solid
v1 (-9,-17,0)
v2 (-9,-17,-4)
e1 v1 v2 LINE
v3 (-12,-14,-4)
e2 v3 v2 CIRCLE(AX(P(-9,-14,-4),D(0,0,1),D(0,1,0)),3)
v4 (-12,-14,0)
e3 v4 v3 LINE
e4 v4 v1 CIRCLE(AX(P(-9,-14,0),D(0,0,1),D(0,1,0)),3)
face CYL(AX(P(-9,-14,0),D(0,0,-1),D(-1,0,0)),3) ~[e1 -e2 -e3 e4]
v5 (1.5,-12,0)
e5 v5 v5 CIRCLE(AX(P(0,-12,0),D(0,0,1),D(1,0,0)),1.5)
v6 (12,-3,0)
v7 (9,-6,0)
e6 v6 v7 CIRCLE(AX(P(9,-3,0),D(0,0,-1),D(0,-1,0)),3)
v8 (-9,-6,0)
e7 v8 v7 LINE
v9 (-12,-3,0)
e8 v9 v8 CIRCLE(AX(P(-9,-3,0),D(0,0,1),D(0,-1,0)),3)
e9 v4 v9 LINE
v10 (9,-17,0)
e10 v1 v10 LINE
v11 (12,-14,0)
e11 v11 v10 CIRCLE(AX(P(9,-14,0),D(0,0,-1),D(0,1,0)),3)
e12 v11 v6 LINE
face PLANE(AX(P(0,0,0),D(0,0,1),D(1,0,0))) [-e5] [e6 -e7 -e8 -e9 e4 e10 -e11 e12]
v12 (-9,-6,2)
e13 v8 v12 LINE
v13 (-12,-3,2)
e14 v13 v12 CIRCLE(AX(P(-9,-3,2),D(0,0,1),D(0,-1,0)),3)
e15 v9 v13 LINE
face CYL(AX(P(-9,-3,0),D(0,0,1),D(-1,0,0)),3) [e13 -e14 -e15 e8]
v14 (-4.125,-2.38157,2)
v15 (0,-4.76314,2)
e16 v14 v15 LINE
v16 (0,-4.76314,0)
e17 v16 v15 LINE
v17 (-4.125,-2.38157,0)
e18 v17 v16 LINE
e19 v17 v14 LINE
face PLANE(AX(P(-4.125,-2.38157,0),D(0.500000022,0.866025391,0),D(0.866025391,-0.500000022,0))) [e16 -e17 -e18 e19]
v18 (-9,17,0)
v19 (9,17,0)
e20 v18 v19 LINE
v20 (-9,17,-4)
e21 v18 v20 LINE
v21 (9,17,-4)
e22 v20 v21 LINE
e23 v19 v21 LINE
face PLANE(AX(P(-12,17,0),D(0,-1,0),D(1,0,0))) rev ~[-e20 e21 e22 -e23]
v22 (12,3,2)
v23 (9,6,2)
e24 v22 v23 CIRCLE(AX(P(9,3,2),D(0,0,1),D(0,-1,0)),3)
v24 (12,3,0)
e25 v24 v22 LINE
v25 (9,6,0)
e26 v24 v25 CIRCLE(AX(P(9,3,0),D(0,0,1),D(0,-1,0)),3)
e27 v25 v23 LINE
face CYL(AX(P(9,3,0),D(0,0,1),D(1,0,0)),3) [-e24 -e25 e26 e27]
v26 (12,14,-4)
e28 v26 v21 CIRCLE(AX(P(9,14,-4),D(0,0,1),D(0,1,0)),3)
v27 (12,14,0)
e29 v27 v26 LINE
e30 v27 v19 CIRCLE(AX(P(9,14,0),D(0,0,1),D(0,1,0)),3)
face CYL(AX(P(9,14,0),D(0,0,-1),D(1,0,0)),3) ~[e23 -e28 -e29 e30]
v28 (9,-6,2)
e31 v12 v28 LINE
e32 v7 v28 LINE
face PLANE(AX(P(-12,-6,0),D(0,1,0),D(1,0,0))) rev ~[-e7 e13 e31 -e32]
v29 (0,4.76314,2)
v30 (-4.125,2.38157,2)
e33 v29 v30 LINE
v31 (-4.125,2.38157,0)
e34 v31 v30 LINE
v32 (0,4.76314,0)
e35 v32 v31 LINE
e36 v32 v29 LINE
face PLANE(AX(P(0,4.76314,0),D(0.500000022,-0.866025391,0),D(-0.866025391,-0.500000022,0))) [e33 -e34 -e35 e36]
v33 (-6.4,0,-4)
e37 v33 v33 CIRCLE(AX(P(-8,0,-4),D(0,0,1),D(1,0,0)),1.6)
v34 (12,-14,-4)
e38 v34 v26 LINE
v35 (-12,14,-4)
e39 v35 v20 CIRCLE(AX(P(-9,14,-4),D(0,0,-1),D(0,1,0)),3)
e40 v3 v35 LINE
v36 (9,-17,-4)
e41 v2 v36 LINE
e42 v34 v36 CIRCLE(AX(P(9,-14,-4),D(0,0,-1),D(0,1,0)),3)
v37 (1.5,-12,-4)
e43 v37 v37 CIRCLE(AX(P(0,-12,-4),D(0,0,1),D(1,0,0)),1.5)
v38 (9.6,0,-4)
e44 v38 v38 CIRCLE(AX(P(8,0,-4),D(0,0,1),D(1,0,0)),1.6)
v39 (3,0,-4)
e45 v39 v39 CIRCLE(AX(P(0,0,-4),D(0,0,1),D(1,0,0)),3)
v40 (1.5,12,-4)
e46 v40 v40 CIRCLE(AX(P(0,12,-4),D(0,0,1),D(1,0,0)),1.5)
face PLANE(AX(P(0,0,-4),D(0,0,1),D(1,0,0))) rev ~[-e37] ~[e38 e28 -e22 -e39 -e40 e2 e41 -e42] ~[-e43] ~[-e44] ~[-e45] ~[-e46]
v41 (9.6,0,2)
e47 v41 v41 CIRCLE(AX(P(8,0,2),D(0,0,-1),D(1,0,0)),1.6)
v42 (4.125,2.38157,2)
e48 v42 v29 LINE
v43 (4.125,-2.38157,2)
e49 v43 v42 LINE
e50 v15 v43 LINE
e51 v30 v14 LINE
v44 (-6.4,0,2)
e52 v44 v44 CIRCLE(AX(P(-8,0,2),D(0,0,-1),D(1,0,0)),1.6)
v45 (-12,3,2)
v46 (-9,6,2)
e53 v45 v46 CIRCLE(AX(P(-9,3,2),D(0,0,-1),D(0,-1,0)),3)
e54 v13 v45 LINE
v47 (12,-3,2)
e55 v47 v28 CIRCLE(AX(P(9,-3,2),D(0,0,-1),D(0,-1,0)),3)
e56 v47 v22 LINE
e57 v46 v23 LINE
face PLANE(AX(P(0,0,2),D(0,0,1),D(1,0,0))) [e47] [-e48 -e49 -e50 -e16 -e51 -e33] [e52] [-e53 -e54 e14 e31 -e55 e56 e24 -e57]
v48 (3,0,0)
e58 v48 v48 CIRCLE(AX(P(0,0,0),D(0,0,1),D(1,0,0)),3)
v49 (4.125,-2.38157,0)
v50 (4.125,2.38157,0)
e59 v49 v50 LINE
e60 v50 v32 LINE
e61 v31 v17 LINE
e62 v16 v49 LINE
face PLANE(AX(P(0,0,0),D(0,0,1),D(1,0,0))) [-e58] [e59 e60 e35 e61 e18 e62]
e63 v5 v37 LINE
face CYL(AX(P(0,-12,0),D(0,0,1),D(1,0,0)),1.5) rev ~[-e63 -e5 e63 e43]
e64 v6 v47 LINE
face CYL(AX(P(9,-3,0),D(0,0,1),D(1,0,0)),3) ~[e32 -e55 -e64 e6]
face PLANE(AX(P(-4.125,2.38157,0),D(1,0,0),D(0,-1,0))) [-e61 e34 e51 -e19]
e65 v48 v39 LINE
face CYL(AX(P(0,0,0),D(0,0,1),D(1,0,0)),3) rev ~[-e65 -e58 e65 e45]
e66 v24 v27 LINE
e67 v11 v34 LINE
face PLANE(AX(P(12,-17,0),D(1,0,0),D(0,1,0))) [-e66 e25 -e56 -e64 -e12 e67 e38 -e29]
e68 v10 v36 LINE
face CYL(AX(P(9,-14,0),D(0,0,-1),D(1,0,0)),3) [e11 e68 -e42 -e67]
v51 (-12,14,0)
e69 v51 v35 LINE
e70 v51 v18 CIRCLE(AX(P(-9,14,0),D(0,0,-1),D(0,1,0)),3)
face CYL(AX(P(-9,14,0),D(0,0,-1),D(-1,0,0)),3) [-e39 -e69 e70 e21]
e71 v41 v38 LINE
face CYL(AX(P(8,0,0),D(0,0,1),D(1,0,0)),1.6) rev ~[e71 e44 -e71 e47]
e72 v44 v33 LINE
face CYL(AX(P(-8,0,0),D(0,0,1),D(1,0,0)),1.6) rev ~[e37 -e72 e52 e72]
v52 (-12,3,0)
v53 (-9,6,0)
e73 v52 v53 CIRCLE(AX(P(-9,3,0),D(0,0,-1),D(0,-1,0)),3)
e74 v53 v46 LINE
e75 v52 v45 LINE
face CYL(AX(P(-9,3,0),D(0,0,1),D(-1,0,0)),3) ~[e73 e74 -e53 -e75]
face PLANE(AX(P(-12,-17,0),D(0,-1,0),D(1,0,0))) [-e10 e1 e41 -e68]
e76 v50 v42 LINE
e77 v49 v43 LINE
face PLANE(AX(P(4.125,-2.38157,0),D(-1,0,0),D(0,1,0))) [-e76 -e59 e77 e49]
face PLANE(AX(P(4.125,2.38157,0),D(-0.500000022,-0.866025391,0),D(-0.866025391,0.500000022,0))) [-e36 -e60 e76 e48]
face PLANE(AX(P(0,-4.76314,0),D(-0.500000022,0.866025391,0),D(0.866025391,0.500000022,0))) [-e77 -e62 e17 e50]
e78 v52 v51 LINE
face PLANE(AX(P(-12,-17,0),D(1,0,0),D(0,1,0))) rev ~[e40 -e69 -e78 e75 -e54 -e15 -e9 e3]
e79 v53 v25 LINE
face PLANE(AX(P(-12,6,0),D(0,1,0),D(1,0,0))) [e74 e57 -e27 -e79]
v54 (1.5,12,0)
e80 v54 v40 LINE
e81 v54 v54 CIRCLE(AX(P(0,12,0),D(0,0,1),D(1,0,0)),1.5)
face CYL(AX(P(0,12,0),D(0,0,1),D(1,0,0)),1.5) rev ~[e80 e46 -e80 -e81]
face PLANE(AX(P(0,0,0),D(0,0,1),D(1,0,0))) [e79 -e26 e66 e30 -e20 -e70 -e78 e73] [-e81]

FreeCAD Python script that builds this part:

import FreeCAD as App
import Part
import Sketcher
Q = App.Units.Quantity


def edges_at(feature, points):
    """Names of the edges that pass closest to the given points."""
    edges = feature.Shape.Edges
    near = lambda p: min(range(len(edges)), key=lambda i: edges[i].distToShape(Part.Vertex(*p))[0])
    return sorted({f"Edge{near(p) + 1}" for p in points})


def add_polygon(sketch, points):
    """Adds a closed chain of lines whose ends are joined by coincident constraints."""
    first, n = sketch.GeometryCount, len(points)
    for a, b in zip(points, points[1:] + points[:1]):
        sketch.addGeometry(Part.LineSegment(App.Vector(*a, 0), App.Vector(*b, 0)), False)
    for i in range(n):
        sketch.addConstraint(Sketcher.Constraint("Coincident", first + i, 2, first + (i + 1) % n, 1))

doc = App.newDocument("Part")
params = doc.addObject("Spreadsheet::Sheet", "Params")
for row, (alias, value) in enumerate([
    ("sketch1_diameter", "3 mm"),
    ("sketch1_diameter2", "6 mm"),
    ("sketch1_width", "24 mm"),
    ("sketch1_height", "34 mm"),
    ("pad1_length", "4 mm"),
    ("sketch2_width", "24 mm"),
    ("sketch2_height", "12 mm"),
    ("pad2_length", "2 mm"),
    ("sketch3_diameter", "3.2 mm"),
    ("fillet_radius", "3 mm"),
], start=1):
    params.set(f"A{row}", alias)
    params.set(f"B{row}", "=" + value)
    params.setAlias(f"B{row}", alias)

body = doc.addObject("PartDesign::Body", "Body")

sketch1 = doc.addObject("Sketcher::SketchObject", "Sketch")
body.addObject(sketch1)
sketch1.AttachmentSupport = (doc.XY_Plane, [""])
sketch1.MapMode = "FlatFace"
add_polygon(sketch1, [(-12, 17), (-12, -17), (12, -17), (12, 17)])
sketch1.addGeometry(Part.Circle(App.Vector(0, -12, 0), App.Vector(0, 0, 1), 1.5), False)
sketch1.addGeometry(Part.Circle(App.Vector(0, 0, 0), App.Vector(0, 0, 1), 3), False)
sketch1.addGeometry(Part.Circle(App.Vector(0, 12, 0), App.Vector(0, 0, 1), 1.5), False)
sketch1.addConstraint(Sketcher.Constraint("Vertical", 0))
sketch1.addConstraint(Sketcher.Constraint("Horizontal", 1))
sketch1.addConstraint(Sketcher.Constraint("Vertical", 2))
sketch1.addConstraint(Sketcher.Constraint("Horizontal", 3))
sketch1.addConstraint(Sketcher.Constraint("Coincident", 5, 3, -1, 1))
sketch1.addConstraint(Sketcher.Constraint("Equal", 4, 6))
sketch1.addConstraint(Sketcher.Constraint("Symmetric", 4, 3, 6, 3, -1, 1))
sketch1.addConstraint(Sketcher.Constraint("Symmetric", 0, 2, 2, 2, -1, 1))
sketch1.addConstraint(Sketcher.Constraint("PointOnObject", 4, 3, -2))
sketch1.addConstraint(Sketcher.Constraint("Diameter", 4, Q("3 mm")))
sketch1.addConstraint(Sketcher.Constraint("Diameter", 5, Q("6 mm")))
sketch1.addConstraint(Sketcher.Constraint("DistanceX", 1, 1, 1, 2, Q("24 mm")))
sketch1.addConstraint(Sketcher.Constraint("DistanceY", 0, 2, 0, 1, Q("34 mm")))
sketch1.addConstraint(Sketcher.Constraint("DistanceY", 4, 3, -1, 1, Q("12 mm")))
sketch1.setExpression("Constraints[13]", "Params.sketch1_diameter")
sketch1.setExpression("Constraints[14]", "Params.sketch1_diameter2")
sketch1.setExpression("Constraints[15]", "Params.sketch1_width")
sketch1.setExpression("Constraints[16]", "Params.sketch1_height")
pad1 = doc.addObject("PartDesign::Pad", "Pad")
body.addObject(pad1)
pad1.Profile = sketch1
pad1.setExpression("Length", "Params.pad1_length")
pad1.Reversed = True

sketch2 = doc.addObject("Sketcher::SketchObject", "Sketch001")
body.addObject(sketch2)
sketch2.AttachmentSupport = (doc.XY_Plane, [""])
sketch2.MapMode = "FlatFace"
add_polygon(sketch2, [(-12, 6), (-12, -6), (12, -6), (12, 6)])
add_polygon(sketch2, [(4.1, 2.4), (4.1, -2.4), (0, -4.8), (-4.1, -2.4), (-4.1, 2.4), (0, 4.8)])
sketch2.addConstraint(Sketcher.Constraint("Vertical", 0))
sketch2.addConstraint(Sketcher.Constraint("Horizontal", 1))
sketch2.addConstraint(Sketcher.Constraint("Vertical", 2))
sketch2.addConstraint(Sketcher.Constraint("Horizontal", 3))
sketch2.addConstraint(Sketcher.Constraint("Vertical", 4))
sketch2.addConstraint(Sketcher.Constraint("Vertical", 7))
sketch2.addConstraint(Sketcher.Constraint("Symmetric", 0, 2, 2, 2, -1, 1))
sketch2.addConstraint(Sketcher.Constraint("Symmetric", 4, 2, 7, 2, -1, 1))
sketch2.addConstraint(Sketcher.Constraint("Symmetric", 5, 2, 8, 2, -1, 1))
sketch2.addConstraint(Sketcher.Constraint("PointOnObject", 5, 2, -2))
sketch2.addConstraint(Sketcher.Constraint("Parallel", 6, 9))
sketch2.addConstraint(Sketcher.Constraint("Horizontal", 4, 2, 6, 2))
sketch2.addConstraint(Sketcher.Constraint("DistanceX", 1, 1, 1, 2, Q("24 mm")))
sketch2.addConstraint(Sketcher.Constraint("DistanceY", 0, 2, 0, 1, Q("12 mm")))
sketch2.addConstraint(Sketcher.Constraint("Angle", 5, Q("-149.999999 deg")))
sketch2.addConstraint(Sketcher.Constraint("DistanceX", 6, 2, 4, 2, Q("8.25 mm")))
sketch2.addConstraint(Sketcher.Constraint("DistanceY", 4, 2, 4, 1, Q("4.76314 mm")))
sketch2.setExpression("Constraints[22]", "Params.sketch2_width")
sketch2.setExpression("Constraints[23]", "Params.sketch2_height")
pad2 = doc.addObject("PartDesign::Pad", "Pad001")
body.addObject(pad2)
pad2.Profile = sketch2
pad2.setExpression("Length", "Params.pad2_length")

sketch3 = doc.addObject("Sketcher::SketchObject", "Sketch002")
body.addObject(sketch3)
sketch3.AttachmentSupport = (doc.XY_Plane, [""])
sketch3.MapMode = "FlatFace"
sketch3.addGeometry(Part.Circle(App.Vector(-8, 0, 0), App.Vector(0, 0, 1), 1.6), False)
sketch3.addGeometry(Part.Circle(App.Vector(8, 0, 0), App.Vector(0, 0, 1), 1.6), False)
sketch3.addConstraint(Sketcher.Constraint("Equal", 0, 1))
sketch3.addConstraint(Sketcher.Constraint("Symmetric", 0, 3, 1, 3, -1, 1))
sketch3.addConstraint(Sketcher.Constraint("PointOnObject", 0, 3, -1))
sketch3.addConstraint(Sketcher.Constraint("Diameter", 0, Q("3.2 mm")))
sketch3.addConstraint(Sketcher.Constraint("DistanceX", 0, 3, -1, 1, Q("8 mm")))
sketch3.setExpression("Constraints[3]", "Params.sketch3_diameter")
pocket1 = doc.addObject("PartDesign::Pocket", "Pocket")
body.addObject(pocket1)
pocket1.Profile = sketch3
pocket1.Type = "ThroughAll"
pocket1.Midplane = True
doc.recompute()

fillet = doc.addObject("PartDesign::Fillet", "Fillet")
body.addObject(fillet)
fillet.Base = (pocket1, edges_at(pocket1, [
    (-12, -17, -2),
    (12, -17, -2),
    (12, -6, 1),
    (-12, -6, 1),
    (-12, 6, 1),
    (12, 6, 1),
    (12, 17, -2),
    (-12, 17, -2),
]))
fillet.setExpression("Radius", "Params.fillet_radius")

doc.recompute()
